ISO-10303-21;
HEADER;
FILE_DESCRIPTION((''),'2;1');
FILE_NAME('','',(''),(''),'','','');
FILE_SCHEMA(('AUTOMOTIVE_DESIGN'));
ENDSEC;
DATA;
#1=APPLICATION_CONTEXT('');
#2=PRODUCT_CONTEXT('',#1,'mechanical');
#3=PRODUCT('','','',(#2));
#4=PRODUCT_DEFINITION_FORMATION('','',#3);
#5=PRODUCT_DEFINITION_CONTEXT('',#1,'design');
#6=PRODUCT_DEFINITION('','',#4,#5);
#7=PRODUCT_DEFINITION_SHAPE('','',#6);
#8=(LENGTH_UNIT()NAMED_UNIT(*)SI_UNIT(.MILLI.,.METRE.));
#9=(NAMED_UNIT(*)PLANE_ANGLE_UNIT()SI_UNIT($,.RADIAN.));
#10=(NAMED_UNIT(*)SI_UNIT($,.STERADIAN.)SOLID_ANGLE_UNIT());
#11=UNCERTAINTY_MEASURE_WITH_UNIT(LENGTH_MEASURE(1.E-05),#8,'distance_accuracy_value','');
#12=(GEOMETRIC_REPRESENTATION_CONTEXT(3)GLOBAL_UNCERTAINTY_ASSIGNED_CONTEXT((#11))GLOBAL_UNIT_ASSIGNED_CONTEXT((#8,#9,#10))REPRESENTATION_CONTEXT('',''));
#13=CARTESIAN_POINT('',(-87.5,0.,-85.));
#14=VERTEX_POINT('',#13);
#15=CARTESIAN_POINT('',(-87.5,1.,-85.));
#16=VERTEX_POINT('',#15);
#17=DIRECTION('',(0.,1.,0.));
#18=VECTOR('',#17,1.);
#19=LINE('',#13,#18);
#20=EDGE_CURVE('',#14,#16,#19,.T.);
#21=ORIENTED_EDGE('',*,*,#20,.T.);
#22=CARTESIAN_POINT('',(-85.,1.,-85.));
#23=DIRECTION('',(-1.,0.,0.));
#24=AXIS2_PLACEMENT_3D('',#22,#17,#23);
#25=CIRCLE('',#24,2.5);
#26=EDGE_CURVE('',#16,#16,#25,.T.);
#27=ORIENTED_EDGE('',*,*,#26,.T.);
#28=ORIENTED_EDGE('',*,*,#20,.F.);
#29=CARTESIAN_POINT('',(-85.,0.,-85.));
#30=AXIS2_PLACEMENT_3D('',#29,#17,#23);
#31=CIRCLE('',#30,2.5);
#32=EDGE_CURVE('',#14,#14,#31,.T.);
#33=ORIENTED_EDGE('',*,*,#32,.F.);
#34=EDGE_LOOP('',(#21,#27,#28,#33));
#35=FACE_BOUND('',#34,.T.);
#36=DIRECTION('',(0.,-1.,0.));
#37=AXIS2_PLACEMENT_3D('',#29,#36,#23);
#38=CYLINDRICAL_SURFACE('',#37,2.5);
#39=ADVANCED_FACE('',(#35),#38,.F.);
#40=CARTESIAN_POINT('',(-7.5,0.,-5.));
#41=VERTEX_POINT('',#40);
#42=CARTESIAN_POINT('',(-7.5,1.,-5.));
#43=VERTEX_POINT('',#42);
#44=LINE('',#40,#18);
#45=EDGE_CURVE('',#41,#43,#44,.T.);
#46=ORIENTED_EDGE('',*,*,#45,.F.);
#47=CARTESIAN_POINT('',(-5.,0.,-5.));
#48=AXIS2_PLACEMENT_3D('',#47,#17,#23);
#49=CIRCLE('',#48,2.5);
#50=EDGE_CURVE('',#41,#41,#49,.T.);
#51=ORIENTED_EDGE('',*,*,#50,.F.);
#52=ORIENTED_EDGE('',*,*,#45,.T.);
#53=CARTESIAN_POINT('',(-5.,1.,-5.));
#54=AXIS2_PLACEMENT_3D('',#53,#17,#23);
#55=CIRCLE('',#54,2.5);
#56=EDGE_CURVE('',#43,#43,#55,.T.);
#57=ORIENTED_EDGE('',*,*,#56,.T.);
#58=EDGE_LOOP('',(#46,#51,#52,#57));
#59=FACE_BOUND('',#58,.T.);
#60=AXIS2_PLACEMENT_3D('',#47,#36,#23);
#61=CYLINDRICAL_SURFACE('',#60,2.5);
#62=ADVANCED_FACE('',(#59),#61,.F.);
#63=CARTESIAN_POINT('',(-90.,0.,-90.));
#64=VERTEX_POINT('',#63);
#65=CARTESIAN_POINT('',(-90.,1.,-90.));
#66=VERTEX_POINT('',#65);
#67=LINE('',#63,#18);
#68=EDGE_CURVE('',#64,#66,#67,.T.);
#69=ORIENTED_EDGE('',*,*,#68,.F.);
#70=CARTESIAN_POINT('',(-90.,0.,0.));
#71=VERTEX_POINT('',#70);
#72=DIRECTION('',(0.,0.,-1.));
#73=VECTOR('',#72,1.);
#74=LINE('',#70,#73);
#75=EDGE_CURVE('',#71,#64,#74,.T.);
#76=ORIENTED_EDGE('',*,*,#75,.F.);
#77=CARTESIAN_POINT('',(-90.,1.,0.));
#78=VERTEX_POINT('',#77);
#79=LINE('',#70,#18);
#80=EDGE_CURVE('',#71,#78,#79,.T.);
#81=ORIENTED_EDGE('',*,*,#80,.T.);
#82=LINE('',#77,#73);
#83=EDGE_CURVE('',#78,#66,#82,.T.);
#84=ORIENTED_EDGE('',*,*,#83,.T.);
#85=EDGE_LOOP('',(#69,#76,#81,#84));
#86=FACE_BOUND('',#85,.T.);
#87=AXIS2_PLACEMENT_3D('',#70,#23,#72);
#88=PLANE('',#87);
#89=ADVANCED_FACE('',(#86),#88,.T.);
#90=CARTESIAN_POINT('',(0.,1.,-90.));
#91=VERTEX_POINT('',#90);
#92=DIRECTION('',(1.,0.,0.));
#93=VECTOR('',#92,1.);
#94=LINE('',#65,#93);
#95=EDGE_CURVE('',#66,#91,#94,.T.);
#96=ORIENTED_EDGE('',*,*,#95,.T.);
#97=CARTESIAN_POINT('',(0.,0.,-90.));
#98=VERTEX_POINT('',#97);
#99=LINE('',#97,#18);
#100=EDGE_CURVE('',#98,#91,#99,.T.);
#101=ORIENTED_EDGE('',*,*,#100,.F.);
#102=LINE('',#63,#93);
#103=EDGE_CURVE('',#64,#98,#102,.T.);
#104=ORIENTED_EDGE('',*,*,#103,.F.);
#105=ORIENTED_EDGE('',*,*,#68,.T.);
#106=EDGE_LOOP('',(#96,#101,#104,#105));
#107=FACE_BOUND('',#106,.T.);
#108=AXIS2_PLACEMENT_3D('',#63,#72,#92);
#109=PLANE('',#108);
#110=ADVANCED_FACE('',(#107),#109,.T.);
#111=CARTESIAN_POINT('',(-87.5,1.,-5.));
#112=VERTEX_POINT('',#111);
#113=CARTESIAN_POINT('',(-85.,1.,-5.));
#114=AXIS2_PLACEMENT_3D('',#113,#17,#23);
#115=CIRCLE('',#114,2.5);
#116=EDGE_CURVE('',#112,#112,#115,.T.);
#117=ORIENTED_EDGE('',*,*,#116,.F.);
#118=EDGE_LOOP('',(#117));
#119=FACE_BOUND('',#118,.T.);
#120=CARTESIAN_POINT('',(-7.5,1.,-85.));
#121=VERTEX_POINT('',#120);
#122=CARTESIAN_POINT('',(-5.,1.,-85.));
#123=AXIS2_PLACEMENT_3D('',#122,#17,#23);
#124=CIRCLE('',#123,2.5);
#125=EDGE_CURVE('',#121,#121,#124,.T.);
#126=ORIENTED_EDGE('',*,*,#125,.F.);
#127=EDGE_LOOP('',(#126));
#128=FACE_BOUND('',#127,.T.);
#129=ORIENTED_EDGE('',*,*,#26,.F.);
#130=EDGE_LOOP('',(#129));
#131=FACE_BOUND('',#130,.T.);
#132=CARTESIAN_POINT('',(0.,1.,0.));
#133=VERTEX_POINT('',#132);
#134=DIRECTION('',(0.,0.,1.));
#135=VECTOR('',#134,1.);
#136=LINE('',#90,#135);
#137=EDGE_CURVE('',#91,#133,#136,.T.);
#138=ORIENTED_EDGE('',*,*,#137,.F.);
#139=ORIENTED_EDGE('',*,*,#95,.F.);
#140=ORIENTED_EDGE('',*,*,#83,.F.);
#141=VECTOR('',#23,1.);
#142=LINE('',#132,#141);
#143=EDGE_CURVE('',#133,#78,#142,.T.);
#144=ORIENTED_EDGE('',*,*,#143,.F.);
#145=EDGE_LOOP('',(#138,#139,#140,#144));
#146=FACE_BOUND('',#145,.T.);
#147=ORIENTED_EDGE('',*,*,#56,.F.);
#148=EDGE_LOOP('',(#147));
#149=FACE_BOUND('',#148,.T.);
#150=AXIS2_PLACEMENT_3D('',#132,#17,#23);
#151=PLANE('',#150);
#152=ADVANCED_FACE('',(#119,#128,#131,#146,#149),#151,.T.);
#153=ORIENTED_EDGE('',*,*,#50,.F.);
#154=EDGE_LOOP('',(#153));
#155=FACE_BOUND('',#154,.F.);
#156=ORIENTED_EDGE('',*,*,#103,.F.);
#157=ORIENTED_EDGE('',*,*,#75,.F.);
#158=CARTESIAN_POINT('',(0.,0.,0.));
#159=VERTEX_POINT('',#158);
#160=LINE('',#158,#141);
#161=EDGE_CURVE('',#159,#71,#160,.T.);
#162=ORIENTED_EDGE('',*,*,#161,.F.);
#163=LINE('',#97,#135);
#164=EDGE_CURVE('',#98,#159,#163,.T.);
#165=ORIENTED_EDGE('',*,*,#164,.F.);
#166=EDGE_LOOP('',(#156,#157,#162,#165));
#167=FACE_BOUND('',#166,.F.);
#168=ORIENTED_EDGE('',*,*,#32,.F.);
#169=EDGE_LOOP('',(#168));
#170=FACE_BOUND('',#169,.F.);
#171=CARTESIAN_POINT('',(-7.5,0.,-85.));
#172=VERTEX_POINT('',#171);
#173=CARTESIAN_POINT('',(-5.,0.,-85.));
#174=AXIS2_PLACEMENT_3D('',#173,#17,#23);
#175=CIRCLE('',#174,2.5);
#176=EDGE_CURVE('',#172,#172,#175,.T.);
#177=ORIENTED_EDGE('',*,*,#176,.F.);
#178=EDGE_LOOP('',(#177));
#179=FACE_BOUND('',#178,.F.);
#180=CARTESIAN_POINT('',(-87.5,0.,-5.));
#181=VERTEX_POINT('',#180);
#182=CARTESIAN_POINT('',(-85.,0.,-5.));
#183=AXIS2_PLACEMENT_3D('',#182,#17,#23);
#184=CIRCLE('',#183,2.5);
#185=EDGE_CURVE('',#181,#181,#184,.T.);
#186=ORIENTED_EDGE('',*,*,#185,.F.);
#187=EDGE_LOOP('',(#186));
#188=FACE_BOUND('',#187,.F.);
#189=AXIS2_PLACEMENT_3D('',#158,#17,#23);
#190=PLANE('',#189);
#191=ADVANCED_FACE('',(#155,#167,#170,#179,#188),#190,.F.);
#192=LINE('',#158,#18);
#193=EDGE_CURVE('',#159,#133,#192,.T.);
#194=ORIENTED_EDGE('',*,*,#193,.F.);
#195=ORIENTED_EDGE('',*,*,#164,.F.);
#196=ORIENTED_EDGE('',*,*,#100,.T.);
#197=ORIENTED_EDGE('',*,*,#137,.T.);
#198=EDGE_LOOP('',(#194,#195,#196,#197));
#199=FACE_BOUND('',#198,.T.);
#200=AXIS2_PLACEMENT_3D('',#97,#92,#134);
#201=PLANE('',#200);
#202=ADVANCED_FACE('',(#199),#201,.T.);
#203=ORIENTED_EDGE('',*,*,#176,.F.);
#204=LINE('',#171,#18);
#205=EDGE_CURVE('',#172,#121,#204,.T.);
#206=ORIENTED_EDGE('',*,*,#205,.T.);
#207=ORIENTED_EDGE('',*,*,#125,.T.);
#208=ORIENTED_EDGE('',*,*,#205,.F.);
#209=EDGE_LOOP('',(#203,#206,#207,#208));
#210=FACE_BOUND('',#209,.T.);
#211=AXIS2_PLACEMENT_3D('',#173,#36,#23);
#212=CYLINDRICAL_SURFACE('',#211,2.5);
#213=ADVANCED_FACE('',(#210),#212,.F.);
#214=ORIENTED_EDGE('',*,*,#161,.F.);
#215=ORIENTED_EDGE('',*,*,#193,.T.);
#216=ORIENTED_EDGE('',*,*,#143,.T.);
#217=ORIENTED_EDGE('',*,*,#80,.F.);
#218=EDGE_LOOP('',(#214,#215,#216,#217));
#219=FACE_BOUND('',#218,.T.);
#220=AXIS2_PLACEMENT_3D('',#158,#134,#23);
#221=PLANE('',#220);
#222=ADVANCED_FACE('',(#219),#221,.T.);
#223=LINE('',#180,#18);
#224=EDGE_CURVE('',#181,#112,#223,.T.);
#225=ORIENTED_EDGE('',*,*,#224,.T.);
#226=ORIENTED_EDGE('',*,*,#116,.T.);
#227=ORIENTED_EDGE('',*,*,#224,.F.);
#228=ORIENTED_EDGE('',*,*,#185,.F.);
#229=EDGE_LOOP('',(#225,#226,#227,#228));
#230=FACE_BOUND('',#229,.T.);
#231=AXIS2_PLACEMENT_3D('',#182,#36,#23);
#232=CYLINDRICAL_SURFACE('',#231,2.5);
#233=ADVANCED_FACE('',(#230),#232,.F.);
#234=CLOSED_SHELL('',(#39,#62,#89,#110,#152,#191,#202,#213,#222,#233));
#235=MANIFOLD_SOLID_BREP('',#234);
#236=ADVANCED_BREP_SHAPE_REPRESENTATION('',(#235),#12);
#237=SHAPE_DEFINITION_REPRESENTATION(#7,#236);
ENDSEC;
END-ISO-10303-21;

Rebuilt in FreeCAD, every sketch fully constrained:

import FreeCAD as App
import Part
import Sketcher


def add_polygon(sketch, points):
    """Adds a closed chain of lines whose ends are joined by coincident constraints."""
    first, n = sketch.GeometryCount, len(points)
    for a, b in zip(points, points[1:] + points[:1]):
        sketch.addGeometry(Part.LineSegment(App.Vector(*a, 0), App.Vector(*b, 0)), False)
    for i in range(n):
        sketch.addConstraint(Sketcher.Constraint("Coincident", first + i, 2, first + (i + 1) % n, 1))

doc = App.newDocument("Part")
body = doc.addObject("PartDesign::Body", "Body")

# Sketch on XZ plane
sketch1 = body.newObject("Sketcher::SketchObject", "Sketch")
sketch1.AttachmentSupport = (doc.getObject("XZ_Plane"), [""])
sketch1.MapMode = "FlatFace"
add_polygon(sketch1, [(-90, 0), (0, 0), (0, -90), (-90, -90)])  # lines 0-3
sketch1.addGeometry(Part.Circle(App.Vector(-5, -85, 0), App.Vector(0, 0, 1), 2.5), False)  # 4
sketch1.addGeometry(Part.Circle(App.Vector(-85, -85, 0), App.Vector(0, 0, 1), 2.5), False)  # 5
sketch1.addGeometry(Part.Circle(App.Vector(-5, -5, 0), App.Vector(0, 0, 1), 2.5), False)  # 6
sketch1.addGeometry(Part.Circle(App.Vector(-85, -5, 0), App.Vector(0, 0, 1), 2.5), False)  # 7
sketch1.addConstraint(Sketcher.Constraint("Horizontal", 0))
sketch1.addConstraint(Sketcher.Constraint("Vertical", 1))
sketch1.addConstraint(Sketcher.Constraint("Horizontal", 2))
sketch1.addConstraint(Sketcher.Constraint("Vertical", 3))
sketch1.addConstraint(Sketcher.Constraint("Coincident", 0, 2, -1, 1))
sketch1.addConstraint(Sketcher.Constraint("Equal", 4, 5))
sketch1.addConstraint(Sketcher.Constraint("Equal", 5, 6))
sketch1.addConstraint(Sketcher.Constraint("Equal", 6, 7))
sketch1.addConstraint(Sketcher.Constraint("Horizontal", 4, 3, 5, 3))
sketch1.addConstraint(Sketcher.Constraint("Horizontal", 6, 3, 7, 3))
sketch1.addConstraint(Sketcher.Constraint("Vertical", 4, 3, 6, 3))
sketch1.addConstraint(Sketcher.Constraint("Vertical", 5, 3, 7, 3))
sketch1.addConstraint(Sketcher.Constraint("Equal", 2, 1))
sketch1.addConstraint(Sketcher.Constraint("Diameter", 4, 5.0))
sketch1.addConstraint(Sketcher.Constraint("DistanceX", 0, 1, 0, 2, 90.0))
sketch1.addConstraint(Sketcher.Constraint("DistanceX", 4, 3, -1, 1, 5.0))
sketch1.addConstraint(Sketcher.Constraint("DistanceY", 6, 3, -1, 1, 5.0))
sketch1.addConstraint(Sketcher.Constraint("DistanceX", 5, 3, 4, 3, 80.0))
sketch1.addConstraint(Sketcher.Constraint("DistanceY", 4, 3, 6, 3, 80.0))
pad1 = body.newObject("PartDesign::Pad", "Pad")
pad1.Profile = sketch1
pad1.Length = 1
pad1.Reversed = True

doc.recompute()
